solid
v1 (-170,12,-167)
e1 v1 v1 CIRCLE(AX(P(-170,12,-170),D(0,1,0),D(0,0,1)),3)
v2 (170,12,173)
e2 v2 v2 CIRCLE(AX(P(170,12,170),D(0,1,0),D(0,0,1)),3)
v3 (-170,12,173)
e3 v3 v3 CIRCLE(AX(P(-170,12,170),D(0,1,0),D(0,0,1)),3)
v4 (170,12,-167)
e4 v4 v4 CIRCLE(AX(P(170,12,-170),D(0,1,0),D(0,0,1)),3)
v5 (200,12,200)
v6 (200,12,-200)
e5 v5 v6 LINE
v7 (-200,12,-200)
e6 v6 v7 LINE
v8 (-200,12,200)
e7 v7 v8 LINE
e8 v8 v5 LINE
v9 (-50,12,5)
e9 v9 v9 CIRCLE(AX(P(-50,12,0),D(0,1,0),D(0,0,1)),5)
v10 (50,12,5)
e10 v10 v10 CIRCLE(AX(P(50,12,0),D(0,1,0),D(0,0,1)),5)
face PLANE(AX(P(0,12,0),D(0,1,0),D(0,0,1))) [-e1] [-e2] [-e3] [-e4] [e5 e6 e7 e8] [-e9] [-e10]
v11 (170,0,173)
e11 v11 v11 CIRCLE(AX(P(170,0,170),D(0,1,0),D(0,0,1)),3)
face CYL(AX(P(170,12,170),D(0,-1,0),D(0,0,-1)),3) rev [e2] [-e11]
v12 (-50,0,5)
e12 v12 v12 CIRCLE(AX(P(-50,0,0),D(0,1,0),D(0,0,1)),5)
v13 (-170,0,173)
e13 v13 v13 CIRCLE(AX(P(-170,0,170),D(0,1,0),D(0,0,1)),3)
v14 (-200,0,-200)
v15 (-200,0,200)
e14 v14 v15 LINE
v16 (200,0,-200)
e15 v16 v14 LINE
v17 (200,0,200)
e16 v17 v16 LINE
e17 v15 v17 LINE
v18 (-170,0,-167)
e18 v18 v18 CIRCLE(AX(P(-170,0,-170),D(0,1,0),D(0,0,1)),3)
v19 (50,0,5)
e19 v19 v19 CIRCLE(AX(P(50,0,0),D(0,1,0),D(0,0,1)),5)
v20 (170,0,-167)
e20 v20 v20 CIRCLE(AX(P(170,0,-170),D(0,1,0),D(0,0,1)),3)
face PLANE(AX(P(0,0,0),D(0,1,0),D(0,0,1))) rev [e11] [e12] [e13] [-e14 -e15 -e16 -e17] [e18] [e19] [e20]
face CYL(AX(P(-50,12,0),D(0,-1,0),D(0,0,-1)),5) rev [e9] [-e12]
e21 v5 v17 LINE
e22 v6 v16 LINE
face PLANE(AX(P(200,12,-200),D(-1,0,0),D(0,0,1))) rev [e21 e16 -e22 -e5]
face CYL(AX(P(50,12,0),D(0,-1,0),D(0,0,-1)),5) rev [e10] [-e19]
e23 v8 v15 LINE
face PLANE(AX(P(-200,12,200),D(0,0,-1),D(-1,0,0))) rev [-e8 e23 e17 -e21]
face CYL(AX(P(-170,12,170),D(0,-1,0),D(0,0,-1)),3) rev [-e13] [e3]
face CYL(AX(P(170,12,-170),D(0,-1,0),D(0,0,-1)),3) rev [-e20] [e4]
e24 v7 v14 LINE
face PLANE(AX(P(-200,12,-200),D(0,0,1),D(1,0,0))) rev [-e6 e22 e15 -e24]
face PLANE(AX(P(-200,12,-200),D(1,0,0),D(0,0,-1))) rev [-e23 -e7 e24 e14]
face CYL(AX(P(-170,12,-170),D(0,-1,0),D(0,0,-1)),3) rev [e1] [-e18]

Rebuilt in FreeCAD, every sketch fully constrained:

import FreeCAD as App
import Part
import Sketcher

V = App.Vector
Q = App.Units.Quantity

doc = App.newDocument("Part")
body = doc.addObject("PartDesign::Body", "Body")

sketch1 = body.newObject("Sketcher::SketchObject", "Sketch")
sketch1.AttachmentSupport = (doc.getObject("XZ_Plane"), [""])
sketch1.MapMode = "FlatFace"
sketch1.addGeometry([
    Part.LineSegment(V(-200, -200, 0), V(-200, 200, 0)),
    Part.LineSegment(V(-200, 200, 0), V(200, 200, 0)),
    Part.LineSegment(V(200, 200, 0), V(200, -200, 0)),
    Part.LineSegment(V(200, -200, 0), V(-200, -200, 0)),
    Part.Circle(V(-170, 170, 0), V(0, 0, 1), 3),
    Part.Circle(V(170, 170, 0), V(0, 0, 1), 3),
    Part.Circle(V(-50, 0, 0), V(0, 0, 1), 5),
    Part.Circle(V(-170, -170, 0), V(0, 0, 1), 3),
    Part.Circle(V(50, 0, 0), V(0, 0, 1), 5),
    Part.Circle(V(170, -170, 0), V(0, 0, 1), 3),
], False)
sketch1.addConstraint([
    Sketcher.Constraint("Coincident", 0, 2, 1, 1),
    Sketcher.Constraint("Coincident", 1, 2, 2, 1),
    Sketcher.Constraint("Coincident", 2, 2, 3, 1),
    Sketcher.Constraint("Coincident", 3, 2, 0, 1),
    Sketcher.Constraint("Vertical", 0),
    Sketcher.Constraint("Horizontal", 1),
    Sketcher.Constraint("Vertical", 2),
    Sketcher.Constraint("Horizontal", 3),
    Sketcher.Constraint("Equal", 4, 5),
    Sketcher.Constraint("Equal", 5, 7),
    Sketcher.Constraint("Equal", 6, 8),
    Sketcher.Constraint("Equal", 7, 9),
    Sketcher.Constraint("Symmetric", 5, 3, 7, 3, -1, 1),
    Sketcher.Constraint("Symmetric", 6, 3, 8, 3, -1, 1),
    Sketcher.Constraint("Symmetric", 4, 3, 9, 3, -1, 1),
    Sketcher.Constraint("Symmetric", 0, 2, 2, 2, -1, 1),
    Sketcher.Constraint("Symmetric", 4, 3, 5, 3, -2),
    Sketcher.Constraint("PointOnObject", 6, 3, -1),
    Sketcher.Constraint("Equal", 3, 0),
    Sketcher.Constraint("Diameter", 4, Q("6 mm")),
    Sketcher.Constraint("Diameter", 6, Q("10 mm")),
    Sketcher.Constraint("DistanceX", 1, 1, 1, 2, Q("400 mm")),
    Sketcher.Constraint("DistanceX", 4, 3, -1, 1, Q("170 mm")),
    Sketcher.Constraint("DistanceY", -1, 1, 4, 3, Q("170 mm")),
    Sketcher.Constraint("DistanceX", 6, 3, -1, 1, Q("50 mm")),
])
pad1 = body.newObject("PartDesign::Pad", "Pad")
pad1.Profile = sketch1
pad1.Length = 12
pad1.Reversed = True

doc.recompute()
